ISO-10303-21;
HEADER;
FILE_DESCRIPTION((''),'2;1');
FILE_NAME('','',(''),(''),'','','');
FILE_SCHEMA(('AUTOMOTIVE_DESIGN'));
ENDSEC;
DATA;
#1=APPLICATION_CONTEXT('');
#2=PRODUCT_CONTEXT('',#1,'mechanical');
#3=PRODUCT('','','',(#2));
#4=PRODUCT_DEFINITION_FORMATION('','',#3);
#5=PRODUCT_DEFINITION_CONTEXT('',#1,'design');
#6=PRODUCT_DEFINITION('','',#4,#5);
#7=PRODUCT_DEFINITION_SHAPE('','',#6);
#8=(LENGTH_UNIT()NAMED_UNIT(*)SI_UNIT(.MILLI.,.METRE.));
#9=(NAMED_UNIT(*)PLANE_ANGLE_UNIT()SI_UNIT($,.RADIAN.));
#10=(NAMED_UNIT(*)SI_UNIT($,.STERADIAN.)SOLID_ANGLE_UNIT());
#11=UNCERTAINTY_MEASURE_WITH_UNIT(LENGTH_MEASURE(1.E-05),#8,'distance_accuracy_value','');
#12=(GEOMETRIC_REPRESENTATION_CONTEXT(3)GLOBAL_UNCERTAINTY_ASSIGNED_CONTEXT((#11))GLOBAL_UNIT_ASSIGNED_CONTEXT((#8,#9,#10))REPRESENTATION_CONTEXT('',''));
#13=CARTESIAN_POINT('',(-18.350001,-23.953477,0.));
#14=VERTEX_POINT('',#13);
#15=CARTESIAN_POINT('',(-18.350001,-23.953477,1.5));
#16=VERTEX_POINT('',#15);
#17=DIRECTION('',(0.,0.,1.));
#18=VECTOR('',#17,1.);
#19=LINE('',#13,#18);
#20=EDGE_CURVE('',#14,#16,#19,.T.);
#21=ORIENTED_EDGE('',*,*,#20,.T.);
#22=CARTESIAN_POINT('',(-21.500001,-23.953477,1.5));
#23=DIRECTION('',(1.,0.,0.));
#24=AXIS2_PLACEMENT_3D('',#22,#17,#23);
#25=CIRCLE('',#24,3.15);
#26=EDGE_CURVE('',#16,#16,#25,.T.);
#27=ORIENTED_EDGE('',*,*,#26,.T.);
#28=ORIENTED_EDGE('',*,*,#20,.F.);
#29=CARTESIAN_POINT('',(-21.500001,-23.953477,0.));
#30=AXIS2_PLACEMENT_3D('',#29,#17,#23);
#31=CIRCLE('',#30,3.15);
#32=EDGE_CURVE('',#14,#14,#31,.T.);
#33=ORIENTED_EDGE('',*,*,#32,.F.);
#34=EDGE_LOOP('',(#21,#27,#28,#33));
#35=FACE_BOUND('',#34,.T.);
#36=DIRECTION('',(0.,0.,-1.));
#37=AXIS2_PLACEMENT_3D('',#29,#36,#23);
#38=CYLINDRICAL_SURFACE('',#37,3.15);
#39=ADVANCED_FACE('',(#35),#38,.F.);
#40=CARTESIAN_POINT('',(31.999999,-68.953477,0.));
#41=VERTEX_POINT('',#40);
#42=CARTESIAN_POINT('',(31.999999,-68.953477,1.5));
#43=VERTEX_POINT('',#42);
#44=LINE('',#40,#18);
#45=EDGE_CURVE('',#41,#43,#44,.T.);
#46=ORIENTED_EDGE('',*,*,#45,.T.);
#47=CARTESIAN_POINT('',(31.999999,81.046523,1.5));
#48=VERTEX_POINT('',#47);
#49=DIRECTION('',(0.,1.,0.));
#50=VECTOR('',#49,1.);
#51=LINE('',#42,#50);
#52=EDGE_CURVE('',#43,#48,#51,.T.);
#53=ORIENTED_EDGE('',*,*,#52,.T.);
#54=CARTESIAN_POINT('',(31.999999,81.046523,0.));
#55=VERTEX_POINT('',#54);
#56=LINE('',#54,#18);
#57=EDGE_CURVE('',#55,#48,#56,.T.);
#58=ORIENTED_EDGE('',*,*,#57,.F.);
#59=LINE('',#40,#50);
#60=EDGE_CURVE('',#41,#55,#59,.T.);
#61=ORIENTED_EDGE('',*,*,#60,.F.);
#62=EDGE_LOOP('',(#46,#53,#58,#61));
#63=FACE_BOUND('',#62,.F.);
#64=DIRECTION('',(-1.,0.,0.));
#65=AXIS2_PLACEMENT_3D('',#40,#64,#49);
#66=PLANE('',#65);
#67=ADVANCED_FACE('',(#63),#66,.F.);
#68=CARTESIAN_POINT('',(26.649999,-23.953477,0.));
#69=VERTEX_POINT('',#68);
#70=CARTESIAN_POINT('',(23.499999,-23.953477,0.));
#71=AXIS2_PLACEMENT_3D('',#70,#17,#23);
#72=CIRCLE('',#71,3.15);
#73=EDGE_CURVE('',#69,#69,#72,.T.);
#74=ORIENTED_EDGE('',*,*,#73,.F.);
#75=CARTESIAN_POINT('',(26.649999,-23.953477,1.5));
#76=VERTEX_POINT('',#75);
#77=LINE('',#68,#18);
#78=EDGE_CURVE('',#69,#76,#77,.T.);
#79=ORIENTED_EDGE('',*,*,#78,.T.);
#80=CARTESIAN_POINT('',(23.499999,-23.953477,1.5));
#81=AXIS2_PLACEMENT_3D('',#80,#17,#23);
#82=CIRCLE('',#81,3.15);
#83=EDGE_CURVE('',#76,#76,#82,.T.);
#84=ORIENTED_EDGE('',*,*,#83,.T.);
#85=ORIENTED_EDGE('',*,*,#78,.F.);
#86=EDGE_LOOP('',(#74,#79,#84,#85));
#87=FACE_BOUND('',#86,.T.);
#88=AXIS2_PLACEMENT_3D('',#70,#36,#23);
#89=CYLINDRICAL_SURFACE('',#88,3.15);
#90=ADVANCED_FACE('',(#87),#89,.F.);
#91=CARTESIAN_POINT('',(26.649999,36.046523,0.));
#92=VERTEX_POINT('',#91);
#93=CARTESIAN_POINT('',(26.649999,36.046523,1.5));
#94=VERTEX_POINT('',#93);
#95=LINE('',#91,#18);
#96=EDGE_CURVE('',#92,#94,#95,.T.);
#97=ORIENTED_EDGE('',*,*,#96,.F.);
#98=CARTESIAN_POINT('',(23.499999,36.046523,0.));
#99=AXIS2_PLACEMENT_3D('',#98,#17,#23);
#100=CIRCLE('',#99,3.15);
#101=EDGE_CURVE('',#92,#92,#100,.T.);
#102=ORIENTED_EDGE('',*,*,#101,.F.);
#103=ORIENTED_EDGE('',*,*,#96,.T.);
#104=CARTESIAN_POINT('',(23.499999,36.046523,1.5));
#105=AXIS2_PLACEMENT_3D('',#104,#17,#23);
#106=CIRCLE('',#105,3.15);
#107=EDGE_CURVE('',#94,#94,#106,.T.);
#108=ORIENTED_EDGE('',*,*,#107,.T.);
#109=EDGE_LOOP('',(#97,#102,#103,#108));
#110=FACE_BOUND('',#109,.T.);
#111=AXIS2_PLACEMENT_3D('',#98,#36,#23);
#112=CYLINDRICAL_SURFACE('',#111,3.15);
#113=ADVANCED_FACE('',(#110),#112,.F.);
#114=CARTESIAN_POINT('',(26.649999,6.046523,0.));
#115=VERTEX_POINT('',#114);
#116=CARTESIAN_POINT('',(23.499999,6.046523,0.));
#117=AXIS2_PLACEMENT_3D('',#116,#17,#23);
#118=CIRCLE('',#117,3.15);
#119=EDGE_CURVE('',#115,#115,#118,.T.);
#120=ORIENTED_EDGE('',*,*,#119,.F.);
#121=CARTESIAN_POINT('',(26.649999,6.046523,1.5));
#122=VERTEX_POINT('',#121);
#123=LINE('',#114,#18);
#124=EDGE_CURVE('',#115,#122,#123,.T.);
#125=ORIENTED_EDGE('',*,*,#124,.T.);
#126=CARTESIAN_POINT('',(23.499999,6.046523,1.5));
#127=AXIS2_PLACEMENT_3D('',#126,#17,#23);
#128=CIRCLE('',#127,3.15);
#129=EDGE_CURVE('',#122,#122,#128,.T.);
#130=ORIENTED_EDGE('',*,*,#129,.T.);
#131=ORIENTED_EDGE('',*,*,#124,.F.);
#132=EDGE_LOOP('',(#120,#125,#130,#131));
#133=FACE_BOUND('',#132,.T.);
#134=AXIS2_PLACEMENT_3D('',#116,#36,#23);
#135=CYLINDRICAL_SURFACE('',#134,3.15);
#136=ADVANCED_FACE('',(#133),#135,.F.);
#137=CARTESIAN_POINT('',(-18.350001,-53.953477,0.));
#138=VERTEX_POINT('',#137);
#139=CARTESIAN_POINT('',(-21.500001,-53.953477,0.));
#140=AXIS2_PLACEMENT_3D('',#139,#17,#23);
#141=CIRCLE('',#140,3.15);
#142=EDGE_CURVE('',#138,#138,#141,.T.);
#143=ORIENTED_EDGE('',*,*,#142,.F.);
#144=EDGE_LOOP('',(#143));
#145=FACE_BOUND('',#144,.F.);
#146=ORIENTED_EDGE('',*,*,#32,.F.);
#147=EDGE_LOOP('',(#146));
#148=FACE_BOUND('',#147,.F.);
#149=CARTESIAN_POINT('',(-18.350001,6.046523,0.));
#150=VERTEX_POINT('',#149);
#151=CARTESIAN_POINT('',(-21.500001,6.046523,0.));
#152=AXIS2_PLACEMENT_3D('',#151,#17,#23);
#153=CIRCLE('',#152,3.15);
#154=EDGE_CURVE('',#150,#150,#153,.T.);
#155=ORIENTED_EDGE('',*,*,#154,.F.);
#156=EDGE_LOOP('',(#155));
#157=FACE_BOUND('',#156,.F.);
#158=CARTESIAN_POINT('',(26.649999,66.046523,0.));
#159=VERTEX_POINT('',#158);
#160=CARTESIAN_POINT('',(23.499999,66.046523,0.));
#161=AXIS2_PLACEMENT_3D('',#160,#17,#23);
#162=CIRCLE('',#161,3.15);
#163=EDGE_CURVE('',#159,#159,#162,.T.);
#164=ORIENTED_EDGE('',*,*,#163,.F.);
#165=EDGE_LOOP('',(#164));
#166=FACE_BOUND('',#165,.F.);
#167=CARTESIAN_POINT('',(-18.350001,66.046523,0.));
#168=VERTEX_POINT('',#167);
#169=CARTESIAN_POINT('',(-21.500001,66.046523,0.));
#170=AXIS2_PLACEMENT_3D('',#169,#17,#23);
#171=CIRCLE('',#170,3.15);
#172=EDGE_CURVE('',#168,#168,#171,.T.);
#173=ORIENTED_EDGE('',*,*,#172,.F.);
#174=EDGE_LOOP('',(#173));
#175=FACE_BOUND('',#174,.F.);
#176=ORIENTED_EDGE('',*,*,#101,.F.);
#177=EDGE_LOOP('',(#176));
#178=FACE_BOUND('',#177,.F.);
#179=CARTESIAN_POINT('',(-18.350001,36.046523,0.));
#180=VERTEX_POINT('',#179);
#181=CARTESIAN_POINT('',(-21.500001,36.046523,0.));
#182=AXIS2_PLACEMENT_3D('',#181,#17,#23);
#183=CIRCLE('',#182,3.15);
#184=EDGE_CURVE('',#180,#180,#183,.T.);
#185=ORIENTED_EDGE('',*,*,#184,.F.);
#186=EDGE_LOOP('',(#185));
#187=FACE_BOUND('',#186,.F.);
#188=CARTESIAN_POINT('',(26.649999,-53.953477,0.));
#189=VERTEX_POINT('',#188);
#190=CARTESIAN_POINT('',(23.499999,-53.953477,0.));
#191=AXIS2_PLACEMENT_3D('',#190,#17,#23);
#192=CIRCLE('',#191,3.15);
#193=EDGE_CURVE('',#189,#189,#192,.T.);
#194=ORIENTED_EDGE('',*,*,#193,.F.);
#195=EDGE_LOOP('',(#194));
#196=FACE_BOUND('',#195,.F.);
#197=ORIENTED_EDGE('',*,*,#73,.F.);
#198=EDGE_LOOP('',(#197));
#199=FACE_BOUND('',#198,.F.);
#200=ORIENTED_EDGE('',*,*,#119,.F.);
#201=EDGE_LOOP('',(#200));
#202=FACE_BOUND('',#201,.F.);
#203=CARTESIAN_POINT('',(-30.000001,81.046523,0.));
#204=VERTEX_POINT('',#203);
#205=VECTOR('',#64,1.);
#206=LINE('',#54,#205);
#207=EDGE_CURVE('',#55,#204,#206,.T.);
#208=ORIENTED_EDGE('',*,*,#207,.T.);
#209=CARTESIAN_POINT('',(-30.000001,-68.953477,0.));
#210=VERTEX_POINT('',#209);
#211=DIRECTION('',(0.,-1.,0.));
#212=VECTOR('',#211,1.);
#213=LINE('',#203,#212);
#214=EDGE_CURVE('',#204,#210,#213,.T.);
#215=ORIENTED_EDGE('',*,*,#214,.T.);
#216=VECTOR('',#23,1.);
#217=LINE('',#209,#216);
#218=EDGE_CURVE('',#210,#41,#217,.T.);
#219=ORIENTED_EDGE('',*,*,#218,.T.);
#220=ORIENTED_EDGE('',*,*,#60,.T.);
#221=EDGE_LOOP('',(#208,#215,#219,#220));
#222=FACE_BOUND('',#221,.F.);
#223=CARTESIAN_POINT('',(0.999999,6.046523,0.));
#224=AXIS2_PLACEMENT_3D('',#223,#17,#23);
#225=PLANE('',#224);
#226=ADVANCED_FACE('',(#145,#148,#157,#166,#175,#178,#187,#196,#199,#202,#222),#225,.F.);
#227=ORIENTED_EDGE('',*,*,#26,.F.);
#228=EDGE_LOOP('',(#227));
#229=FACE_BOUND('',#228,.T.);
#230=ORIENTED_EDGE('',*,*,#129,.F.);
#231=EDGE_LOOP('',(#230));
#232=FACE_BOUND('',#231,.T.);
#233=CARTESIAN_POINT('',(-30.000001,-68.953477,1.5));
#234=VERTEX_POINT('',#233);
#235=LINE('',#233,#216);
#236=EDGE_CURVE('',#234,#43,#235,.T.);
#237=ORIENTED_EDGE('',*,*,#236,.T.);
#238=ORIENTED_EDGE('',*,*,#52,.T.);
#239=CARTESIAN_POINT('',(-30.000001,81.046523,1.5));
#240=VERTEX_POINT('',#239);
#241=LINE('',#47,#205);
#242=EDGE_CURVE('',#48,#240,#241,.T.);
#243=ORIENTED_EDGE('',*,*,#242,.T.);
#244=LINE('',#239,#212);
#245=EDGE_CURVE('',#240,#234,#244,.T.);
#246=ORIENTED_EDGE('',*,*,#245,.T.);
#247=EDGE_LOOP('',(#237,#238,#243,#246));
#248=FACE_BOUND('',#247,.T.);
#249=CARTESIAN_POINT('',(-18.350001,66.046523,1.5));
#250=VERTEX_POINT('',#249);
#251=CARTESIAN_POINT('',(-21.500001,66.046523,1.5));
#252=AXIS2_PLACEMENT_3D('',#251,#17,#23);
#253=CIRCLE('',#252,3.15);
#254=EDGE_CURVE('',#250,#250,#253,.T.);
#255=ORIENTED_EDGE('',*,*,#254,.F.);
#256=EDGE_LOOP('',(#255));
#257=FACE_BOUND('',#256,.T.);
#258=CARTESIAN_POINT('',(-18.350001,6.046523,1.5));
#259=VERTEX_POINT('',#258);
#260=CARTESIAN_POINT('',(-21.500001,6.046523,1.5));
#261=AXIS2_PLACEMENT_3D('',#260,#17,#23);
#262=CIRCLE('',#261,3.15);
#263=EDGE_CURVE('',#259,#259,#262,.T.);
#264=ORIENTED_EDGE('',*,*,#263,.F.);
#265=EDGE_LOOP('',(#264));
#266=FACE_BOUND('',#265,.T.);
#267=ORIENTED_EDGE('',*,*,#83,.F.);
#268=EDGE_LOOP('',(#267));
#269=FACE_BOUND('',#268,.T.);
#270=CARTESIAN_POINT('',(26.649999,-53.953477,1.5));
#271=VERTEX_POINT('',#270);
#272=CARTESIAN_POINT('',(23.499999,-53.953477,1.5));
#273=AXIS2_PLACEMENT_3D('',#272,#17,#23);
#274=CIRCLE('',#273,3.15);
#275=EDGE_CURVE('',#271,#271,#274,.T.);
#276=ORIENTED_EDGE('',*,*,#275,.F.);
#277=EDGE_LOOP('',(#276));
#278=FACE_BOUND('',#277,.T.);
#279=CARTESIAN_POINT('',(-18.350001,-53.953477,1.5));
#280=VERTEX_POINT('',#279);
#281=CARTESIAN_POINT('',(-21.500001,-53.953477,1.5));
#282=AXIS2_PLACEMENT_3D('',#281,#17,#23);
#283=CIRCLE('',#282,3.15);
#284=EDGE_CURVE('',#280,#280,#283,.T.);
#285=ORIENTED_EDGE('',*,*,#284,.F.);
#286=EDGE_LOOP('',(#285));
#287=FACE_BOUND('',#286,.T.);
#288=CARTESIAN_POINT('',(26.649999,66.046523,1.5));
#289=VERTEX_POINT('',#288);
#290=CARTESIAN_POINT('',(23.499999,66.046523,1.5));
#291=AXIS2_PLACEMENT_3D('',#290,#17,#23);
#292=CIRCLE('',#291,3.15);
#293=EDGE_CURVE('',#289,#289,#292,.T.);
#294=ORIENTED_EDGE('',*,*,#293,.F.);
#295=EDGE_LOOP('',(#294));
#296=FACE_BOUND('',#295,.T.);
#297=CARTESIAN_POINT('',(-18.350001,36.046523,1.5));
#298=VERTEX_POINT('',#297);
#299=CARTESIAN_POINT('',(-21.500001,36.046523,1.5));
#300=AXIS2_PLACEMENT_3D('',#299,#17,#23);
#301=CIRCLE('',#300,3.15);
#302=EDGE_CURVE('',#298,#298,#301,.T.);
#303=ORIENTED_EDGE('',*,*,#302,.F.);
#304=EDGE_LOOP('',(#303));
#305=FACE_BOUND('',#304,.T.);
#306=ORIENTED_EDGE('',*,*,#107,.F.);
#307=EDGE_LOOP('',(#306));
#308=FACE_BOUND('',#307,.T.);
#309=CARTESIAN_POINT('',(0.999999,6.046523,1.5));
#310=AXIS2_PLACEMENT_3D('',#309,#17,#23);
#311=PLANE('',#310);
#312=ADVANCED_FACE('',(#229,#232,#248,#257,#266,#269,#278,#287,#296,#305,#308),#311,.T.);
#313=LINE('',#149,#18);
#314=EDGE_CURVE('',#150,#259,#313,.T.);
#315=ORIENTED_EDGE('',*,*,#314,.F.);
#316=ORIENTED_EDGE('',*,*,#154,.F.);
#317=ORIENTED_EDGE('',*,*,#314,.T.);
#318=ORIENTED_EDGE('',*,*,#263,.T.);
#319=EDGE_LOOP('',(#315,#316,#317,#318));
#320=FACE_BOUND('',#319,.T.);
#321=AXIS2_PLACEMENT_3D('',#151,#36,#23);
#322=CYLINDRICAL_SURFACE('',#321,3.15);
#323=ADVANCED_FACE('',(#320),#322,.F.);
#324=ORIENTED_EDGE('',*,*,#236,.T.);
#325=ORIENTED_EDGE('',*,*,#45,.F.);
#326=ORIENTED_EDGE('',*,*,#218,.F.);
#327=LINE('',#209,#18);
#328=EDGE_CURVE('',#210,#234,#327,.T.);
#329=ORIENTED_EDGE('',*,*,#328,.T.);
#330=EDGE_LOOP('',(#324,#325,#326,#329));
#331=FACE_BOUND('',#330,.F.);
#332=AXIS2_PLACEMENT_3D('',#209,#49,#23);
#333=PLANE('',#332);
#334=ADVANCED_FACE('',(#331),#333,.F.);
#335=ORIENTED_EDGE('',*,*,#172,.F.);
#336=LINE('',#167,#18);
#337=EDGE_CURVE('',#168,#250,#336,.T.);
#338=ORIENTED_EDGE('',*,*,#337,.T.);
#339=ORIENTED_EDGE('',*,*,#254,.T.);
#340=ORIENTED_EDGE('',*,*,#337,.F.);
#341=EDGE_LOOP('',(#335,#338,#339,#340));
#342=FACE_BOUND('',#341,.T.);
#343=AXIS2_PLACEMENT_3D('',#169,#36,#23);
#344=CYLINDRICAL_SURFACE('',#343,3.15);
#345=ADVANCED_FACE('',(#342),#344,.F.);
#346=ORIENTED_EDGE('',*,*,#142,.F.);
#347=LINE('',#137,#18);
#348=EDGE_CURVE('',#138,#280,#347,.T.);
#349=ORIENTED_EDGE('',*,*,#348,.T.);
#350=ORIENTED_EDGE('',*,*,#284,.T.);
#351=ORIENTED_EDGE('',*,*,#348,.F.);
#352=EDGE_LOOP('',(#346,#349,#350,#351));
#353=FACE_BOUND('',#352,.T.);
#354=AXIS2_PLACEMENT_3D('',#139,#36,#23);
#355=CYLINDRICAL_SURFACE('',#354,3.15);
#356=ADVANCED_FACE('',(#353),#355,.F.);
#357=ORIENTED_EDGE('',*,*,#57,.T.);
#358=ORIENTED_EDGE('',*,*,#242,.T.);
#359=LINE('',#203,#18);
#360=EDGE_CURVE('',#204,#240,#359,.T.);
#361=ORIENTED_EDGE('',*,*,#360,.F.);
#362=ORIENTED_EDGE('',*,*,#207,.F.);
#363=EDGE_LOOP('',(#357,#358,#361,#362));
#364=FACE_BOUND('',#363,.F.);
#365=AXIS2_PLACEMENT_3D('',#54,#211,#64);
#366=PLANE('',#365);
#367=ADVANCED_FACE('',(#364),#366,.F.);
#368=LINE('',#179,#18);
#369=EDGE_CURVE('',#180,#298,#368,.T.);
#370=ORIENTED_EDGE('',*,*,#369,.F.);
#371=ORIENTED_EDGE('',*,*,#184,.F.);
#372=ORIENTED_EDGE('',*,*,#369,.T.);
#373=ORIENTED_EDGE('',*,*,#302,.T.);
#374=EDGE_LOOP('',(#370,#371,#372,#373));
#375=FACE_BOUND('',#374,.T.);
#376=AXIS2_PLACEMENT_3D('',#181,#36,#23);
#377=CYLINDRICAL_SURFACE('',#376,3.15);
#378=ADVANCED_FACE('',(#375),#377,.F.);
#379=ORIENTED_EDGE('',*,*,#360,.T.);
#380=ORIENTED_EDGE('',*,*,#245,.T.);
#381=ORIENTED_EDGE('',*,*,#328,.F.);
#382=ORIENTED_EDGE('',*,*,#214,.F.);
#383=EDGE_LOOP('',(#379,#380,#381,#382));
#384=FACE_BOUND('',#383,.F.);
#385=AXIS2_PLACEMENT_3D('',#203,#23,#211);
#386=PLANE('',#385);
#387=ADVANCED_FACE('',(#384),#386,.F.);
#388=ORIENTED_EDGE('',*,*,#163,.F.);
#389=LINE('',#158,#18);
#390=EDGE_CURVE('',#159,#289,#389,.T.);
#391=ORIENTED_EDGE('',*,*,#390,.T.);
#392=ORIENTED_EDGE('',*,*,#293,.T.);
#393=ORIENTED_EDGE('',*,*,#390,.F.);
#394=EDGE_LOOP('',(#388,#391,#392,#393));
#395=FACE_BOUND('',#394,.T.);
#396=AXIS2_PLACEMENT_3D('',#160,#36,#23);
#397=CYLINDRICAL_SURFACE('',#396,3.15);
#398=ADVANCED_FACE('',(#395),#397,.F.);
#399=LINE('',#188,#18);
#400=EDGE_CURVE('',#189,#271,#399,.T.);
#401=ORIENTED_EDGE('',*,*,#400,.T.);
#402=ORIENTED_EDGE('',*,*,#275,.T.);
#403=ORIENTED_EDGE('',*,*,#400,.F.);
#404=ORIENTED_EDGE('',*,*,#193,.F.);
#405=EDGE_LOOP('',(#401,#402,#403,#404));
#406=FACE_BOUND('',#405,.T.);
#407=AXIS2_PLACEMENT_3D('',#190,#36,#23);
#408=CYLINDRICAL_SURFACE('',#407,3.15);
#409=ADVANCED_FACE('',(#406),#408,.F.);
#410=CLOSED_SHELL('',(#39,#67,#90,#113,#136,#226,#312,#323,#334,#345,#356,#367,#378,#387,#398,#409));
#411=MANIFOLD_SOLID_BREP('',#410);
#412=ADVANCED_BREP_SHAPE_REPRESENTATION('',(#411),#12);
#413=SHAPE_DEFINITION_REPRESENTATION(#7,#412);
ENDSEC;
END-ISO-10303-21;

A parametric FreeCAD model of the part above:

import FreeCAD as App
import Part
import Sketcher
from FreeCAD import Vector
Q = App.Units.Quantity

doc = App.newDocument("Part")
body = doc.addObject("PartDesign::Body", "Body")

sketch1 = body.newObject("Sketcher::SketchObject", "Sketch")
sketch1.AttachmentSupport = (doc.getObject("XY_Plane"), [""])
sketch1.MapMode = "FlatFace"
sketch1.addGeometry([
    Part.LineSegment(Vector(32, -69, 0), Vector(32, 81, 0)),
    Part.LineSegment(Vector(32, 81, 0), Vector(-30, 81, 0)),
    Part.LineSegment(Vector(-30, 81, 0), Vector(-30, -69, 0)),
    Part.LineSegment(Vector(-30, -69, 0), Vector(32, -69, 0)),
    Part.Circle(Vector(-21.5, -54, 0), Vector(0, 0, 1), 3.1),
    Part.Circle(Vector(-21.5, -24, 0), Vector(0, 0, 1), 3.1),
    Part.Circle(Vector(23.5, -54, 0), Vector(0, 0, 1), 3.1),
    Part.Circle(Vector(23.5, -24, 0), Vector(0, 0, 1), 3.1),
    Part.Circle(Vector(-21.5, 6, 0), Vector(0, 0, 1), 3.1),
    Part.Circle(Vector(-21.5, 36, 0), Vector(0, 0, 1), 3.1),
    Part.Circle(Vector(-21.5, 66, 0), Vector(0, 0, 1), 3.1),
    Part.Circle(Vector(23.5, 6, 0), Vector(0, 0, 1), 3.1),
    Part.Circle(Vector(23.5, 36, 0), Vector(0, 0, 1), 3.1),
    Part.Circle(Vector(23.5, 66, 0), Vector(0, 0, 1), 3.1),
], False)
sketch1.addConstraint([
    Sketcher.Constraint("Coincident", 0, 2, 1, 1),
    Sketcher.Constraint("Coincident", 1, 2, 2, 1),
    Sketcher.Constraint("Coincident", 2, 2, 3, 1),
    Sketcher.Constraint("Coincident", 3, 2, 0, 1),
    Sketcher.Constraint("Vertical", 0),
    Sketcher.Constraint("Horizontal", 1),
    Sketcher.Constraint("Vertical", 2),
    Sketcher.Constraint("Horizontal", 3),
    Sketcher.Constraint("Equal", 4, 5),
    Sketcher.Constraint("Equal", 5, 6),
    Sketcher.Constraint("Equal", 6, 7),
    Sketcher.Constraint("Equal", 7, 8),
    Sketcher.Constraint("Equal", 8, 9),
    Sketcher.Constraint("Equal", 9, 10),
    Sketcher.Constraint("Equal", 10, 11),
    Sketcher.Constraint("Equal", 11, 12),
    Sketcher.Constraint("Equal", 12, 13),
    Sketcher.Constraint("Horizontal", 4, 3, 6, 3),
    Sketcher.Constraint("Horizontal", 5, 3, 7, 3),
    Sketcher.Constraint("Horizontal", 8, 3, 11, 3),
    Sketcher.Constraint("Horizontal", 9, 3, 12, 3),
    Sketcher.Constraint("Horizontal", 10, 3, 13, 3),
    Sketcher.Constraint("Vertical", 4, 3, 5, 3),
    Sketcher.Constraint("Vertical", 6, 3, 7, 3),
    Sketcher.Constraint("Vertical", 5, 3, 8, 3),
    Sketcher.Constraint("Vertical", 8, 3, 9, 3),
    Sketcher.Constraint("Vertical", 9, 3, 10, 3),
    Sketcher.Constraint("Vertical", 7, 3, 11, 3),
    Sketcher.Constraint("Vertical", 11, 3, 12, 3),
    Sketcher.Constraint("Vertical", 12, 3, 13, 3),
    Sketcher.Constraint("Diameter", 4, Q("6.3 mm")),
    Sketcher.Constraint("DistanceX", 1, 2, 1, 1, Q("62 mm")),
    Sketcher.Constraint("DistanceY", 0, 1, 0, 2, Q("150 mm")),
    Sketcher.Constraint("DistanceX", -1, 1, 0, 2, Q("31.999999 mm")),
    Sketcher.Constraint("DistanceY", 4, 3, 5, 3, Q("30 mm")),
    Sketcher.Constraint("DistanceX", 4, 3, 6, 3, Q("45 mm")),
    Sketcher.Constraint("DistanceY", 5, 3, 8, 3, Q("30 mm")),
    Sketcher.Constraint("DistanceY", 8, 3, 9, 3, Q("30 mm")),
    Sketcher.Constraint("DistanceY", 9, 3, 10, 3, Q("30 mm")),
    Sketcher.Constraint("DistanceY", 13, 3, 0, 2, Q("15 mm")),
    Sketcher.Constraint("DistanceX", 4, 3, -1, 1, Q("21.500001 mm")),
    Sketcher.Constraint("DistanceY", 4, 3, -1, 1, Q("53.953477 mm")),
])
pad1 = body.newObject("PartDesign::Pad", "Pad")
pad1.Profile = sketch1
pad1.Length = 1.5

doc.recompute()
